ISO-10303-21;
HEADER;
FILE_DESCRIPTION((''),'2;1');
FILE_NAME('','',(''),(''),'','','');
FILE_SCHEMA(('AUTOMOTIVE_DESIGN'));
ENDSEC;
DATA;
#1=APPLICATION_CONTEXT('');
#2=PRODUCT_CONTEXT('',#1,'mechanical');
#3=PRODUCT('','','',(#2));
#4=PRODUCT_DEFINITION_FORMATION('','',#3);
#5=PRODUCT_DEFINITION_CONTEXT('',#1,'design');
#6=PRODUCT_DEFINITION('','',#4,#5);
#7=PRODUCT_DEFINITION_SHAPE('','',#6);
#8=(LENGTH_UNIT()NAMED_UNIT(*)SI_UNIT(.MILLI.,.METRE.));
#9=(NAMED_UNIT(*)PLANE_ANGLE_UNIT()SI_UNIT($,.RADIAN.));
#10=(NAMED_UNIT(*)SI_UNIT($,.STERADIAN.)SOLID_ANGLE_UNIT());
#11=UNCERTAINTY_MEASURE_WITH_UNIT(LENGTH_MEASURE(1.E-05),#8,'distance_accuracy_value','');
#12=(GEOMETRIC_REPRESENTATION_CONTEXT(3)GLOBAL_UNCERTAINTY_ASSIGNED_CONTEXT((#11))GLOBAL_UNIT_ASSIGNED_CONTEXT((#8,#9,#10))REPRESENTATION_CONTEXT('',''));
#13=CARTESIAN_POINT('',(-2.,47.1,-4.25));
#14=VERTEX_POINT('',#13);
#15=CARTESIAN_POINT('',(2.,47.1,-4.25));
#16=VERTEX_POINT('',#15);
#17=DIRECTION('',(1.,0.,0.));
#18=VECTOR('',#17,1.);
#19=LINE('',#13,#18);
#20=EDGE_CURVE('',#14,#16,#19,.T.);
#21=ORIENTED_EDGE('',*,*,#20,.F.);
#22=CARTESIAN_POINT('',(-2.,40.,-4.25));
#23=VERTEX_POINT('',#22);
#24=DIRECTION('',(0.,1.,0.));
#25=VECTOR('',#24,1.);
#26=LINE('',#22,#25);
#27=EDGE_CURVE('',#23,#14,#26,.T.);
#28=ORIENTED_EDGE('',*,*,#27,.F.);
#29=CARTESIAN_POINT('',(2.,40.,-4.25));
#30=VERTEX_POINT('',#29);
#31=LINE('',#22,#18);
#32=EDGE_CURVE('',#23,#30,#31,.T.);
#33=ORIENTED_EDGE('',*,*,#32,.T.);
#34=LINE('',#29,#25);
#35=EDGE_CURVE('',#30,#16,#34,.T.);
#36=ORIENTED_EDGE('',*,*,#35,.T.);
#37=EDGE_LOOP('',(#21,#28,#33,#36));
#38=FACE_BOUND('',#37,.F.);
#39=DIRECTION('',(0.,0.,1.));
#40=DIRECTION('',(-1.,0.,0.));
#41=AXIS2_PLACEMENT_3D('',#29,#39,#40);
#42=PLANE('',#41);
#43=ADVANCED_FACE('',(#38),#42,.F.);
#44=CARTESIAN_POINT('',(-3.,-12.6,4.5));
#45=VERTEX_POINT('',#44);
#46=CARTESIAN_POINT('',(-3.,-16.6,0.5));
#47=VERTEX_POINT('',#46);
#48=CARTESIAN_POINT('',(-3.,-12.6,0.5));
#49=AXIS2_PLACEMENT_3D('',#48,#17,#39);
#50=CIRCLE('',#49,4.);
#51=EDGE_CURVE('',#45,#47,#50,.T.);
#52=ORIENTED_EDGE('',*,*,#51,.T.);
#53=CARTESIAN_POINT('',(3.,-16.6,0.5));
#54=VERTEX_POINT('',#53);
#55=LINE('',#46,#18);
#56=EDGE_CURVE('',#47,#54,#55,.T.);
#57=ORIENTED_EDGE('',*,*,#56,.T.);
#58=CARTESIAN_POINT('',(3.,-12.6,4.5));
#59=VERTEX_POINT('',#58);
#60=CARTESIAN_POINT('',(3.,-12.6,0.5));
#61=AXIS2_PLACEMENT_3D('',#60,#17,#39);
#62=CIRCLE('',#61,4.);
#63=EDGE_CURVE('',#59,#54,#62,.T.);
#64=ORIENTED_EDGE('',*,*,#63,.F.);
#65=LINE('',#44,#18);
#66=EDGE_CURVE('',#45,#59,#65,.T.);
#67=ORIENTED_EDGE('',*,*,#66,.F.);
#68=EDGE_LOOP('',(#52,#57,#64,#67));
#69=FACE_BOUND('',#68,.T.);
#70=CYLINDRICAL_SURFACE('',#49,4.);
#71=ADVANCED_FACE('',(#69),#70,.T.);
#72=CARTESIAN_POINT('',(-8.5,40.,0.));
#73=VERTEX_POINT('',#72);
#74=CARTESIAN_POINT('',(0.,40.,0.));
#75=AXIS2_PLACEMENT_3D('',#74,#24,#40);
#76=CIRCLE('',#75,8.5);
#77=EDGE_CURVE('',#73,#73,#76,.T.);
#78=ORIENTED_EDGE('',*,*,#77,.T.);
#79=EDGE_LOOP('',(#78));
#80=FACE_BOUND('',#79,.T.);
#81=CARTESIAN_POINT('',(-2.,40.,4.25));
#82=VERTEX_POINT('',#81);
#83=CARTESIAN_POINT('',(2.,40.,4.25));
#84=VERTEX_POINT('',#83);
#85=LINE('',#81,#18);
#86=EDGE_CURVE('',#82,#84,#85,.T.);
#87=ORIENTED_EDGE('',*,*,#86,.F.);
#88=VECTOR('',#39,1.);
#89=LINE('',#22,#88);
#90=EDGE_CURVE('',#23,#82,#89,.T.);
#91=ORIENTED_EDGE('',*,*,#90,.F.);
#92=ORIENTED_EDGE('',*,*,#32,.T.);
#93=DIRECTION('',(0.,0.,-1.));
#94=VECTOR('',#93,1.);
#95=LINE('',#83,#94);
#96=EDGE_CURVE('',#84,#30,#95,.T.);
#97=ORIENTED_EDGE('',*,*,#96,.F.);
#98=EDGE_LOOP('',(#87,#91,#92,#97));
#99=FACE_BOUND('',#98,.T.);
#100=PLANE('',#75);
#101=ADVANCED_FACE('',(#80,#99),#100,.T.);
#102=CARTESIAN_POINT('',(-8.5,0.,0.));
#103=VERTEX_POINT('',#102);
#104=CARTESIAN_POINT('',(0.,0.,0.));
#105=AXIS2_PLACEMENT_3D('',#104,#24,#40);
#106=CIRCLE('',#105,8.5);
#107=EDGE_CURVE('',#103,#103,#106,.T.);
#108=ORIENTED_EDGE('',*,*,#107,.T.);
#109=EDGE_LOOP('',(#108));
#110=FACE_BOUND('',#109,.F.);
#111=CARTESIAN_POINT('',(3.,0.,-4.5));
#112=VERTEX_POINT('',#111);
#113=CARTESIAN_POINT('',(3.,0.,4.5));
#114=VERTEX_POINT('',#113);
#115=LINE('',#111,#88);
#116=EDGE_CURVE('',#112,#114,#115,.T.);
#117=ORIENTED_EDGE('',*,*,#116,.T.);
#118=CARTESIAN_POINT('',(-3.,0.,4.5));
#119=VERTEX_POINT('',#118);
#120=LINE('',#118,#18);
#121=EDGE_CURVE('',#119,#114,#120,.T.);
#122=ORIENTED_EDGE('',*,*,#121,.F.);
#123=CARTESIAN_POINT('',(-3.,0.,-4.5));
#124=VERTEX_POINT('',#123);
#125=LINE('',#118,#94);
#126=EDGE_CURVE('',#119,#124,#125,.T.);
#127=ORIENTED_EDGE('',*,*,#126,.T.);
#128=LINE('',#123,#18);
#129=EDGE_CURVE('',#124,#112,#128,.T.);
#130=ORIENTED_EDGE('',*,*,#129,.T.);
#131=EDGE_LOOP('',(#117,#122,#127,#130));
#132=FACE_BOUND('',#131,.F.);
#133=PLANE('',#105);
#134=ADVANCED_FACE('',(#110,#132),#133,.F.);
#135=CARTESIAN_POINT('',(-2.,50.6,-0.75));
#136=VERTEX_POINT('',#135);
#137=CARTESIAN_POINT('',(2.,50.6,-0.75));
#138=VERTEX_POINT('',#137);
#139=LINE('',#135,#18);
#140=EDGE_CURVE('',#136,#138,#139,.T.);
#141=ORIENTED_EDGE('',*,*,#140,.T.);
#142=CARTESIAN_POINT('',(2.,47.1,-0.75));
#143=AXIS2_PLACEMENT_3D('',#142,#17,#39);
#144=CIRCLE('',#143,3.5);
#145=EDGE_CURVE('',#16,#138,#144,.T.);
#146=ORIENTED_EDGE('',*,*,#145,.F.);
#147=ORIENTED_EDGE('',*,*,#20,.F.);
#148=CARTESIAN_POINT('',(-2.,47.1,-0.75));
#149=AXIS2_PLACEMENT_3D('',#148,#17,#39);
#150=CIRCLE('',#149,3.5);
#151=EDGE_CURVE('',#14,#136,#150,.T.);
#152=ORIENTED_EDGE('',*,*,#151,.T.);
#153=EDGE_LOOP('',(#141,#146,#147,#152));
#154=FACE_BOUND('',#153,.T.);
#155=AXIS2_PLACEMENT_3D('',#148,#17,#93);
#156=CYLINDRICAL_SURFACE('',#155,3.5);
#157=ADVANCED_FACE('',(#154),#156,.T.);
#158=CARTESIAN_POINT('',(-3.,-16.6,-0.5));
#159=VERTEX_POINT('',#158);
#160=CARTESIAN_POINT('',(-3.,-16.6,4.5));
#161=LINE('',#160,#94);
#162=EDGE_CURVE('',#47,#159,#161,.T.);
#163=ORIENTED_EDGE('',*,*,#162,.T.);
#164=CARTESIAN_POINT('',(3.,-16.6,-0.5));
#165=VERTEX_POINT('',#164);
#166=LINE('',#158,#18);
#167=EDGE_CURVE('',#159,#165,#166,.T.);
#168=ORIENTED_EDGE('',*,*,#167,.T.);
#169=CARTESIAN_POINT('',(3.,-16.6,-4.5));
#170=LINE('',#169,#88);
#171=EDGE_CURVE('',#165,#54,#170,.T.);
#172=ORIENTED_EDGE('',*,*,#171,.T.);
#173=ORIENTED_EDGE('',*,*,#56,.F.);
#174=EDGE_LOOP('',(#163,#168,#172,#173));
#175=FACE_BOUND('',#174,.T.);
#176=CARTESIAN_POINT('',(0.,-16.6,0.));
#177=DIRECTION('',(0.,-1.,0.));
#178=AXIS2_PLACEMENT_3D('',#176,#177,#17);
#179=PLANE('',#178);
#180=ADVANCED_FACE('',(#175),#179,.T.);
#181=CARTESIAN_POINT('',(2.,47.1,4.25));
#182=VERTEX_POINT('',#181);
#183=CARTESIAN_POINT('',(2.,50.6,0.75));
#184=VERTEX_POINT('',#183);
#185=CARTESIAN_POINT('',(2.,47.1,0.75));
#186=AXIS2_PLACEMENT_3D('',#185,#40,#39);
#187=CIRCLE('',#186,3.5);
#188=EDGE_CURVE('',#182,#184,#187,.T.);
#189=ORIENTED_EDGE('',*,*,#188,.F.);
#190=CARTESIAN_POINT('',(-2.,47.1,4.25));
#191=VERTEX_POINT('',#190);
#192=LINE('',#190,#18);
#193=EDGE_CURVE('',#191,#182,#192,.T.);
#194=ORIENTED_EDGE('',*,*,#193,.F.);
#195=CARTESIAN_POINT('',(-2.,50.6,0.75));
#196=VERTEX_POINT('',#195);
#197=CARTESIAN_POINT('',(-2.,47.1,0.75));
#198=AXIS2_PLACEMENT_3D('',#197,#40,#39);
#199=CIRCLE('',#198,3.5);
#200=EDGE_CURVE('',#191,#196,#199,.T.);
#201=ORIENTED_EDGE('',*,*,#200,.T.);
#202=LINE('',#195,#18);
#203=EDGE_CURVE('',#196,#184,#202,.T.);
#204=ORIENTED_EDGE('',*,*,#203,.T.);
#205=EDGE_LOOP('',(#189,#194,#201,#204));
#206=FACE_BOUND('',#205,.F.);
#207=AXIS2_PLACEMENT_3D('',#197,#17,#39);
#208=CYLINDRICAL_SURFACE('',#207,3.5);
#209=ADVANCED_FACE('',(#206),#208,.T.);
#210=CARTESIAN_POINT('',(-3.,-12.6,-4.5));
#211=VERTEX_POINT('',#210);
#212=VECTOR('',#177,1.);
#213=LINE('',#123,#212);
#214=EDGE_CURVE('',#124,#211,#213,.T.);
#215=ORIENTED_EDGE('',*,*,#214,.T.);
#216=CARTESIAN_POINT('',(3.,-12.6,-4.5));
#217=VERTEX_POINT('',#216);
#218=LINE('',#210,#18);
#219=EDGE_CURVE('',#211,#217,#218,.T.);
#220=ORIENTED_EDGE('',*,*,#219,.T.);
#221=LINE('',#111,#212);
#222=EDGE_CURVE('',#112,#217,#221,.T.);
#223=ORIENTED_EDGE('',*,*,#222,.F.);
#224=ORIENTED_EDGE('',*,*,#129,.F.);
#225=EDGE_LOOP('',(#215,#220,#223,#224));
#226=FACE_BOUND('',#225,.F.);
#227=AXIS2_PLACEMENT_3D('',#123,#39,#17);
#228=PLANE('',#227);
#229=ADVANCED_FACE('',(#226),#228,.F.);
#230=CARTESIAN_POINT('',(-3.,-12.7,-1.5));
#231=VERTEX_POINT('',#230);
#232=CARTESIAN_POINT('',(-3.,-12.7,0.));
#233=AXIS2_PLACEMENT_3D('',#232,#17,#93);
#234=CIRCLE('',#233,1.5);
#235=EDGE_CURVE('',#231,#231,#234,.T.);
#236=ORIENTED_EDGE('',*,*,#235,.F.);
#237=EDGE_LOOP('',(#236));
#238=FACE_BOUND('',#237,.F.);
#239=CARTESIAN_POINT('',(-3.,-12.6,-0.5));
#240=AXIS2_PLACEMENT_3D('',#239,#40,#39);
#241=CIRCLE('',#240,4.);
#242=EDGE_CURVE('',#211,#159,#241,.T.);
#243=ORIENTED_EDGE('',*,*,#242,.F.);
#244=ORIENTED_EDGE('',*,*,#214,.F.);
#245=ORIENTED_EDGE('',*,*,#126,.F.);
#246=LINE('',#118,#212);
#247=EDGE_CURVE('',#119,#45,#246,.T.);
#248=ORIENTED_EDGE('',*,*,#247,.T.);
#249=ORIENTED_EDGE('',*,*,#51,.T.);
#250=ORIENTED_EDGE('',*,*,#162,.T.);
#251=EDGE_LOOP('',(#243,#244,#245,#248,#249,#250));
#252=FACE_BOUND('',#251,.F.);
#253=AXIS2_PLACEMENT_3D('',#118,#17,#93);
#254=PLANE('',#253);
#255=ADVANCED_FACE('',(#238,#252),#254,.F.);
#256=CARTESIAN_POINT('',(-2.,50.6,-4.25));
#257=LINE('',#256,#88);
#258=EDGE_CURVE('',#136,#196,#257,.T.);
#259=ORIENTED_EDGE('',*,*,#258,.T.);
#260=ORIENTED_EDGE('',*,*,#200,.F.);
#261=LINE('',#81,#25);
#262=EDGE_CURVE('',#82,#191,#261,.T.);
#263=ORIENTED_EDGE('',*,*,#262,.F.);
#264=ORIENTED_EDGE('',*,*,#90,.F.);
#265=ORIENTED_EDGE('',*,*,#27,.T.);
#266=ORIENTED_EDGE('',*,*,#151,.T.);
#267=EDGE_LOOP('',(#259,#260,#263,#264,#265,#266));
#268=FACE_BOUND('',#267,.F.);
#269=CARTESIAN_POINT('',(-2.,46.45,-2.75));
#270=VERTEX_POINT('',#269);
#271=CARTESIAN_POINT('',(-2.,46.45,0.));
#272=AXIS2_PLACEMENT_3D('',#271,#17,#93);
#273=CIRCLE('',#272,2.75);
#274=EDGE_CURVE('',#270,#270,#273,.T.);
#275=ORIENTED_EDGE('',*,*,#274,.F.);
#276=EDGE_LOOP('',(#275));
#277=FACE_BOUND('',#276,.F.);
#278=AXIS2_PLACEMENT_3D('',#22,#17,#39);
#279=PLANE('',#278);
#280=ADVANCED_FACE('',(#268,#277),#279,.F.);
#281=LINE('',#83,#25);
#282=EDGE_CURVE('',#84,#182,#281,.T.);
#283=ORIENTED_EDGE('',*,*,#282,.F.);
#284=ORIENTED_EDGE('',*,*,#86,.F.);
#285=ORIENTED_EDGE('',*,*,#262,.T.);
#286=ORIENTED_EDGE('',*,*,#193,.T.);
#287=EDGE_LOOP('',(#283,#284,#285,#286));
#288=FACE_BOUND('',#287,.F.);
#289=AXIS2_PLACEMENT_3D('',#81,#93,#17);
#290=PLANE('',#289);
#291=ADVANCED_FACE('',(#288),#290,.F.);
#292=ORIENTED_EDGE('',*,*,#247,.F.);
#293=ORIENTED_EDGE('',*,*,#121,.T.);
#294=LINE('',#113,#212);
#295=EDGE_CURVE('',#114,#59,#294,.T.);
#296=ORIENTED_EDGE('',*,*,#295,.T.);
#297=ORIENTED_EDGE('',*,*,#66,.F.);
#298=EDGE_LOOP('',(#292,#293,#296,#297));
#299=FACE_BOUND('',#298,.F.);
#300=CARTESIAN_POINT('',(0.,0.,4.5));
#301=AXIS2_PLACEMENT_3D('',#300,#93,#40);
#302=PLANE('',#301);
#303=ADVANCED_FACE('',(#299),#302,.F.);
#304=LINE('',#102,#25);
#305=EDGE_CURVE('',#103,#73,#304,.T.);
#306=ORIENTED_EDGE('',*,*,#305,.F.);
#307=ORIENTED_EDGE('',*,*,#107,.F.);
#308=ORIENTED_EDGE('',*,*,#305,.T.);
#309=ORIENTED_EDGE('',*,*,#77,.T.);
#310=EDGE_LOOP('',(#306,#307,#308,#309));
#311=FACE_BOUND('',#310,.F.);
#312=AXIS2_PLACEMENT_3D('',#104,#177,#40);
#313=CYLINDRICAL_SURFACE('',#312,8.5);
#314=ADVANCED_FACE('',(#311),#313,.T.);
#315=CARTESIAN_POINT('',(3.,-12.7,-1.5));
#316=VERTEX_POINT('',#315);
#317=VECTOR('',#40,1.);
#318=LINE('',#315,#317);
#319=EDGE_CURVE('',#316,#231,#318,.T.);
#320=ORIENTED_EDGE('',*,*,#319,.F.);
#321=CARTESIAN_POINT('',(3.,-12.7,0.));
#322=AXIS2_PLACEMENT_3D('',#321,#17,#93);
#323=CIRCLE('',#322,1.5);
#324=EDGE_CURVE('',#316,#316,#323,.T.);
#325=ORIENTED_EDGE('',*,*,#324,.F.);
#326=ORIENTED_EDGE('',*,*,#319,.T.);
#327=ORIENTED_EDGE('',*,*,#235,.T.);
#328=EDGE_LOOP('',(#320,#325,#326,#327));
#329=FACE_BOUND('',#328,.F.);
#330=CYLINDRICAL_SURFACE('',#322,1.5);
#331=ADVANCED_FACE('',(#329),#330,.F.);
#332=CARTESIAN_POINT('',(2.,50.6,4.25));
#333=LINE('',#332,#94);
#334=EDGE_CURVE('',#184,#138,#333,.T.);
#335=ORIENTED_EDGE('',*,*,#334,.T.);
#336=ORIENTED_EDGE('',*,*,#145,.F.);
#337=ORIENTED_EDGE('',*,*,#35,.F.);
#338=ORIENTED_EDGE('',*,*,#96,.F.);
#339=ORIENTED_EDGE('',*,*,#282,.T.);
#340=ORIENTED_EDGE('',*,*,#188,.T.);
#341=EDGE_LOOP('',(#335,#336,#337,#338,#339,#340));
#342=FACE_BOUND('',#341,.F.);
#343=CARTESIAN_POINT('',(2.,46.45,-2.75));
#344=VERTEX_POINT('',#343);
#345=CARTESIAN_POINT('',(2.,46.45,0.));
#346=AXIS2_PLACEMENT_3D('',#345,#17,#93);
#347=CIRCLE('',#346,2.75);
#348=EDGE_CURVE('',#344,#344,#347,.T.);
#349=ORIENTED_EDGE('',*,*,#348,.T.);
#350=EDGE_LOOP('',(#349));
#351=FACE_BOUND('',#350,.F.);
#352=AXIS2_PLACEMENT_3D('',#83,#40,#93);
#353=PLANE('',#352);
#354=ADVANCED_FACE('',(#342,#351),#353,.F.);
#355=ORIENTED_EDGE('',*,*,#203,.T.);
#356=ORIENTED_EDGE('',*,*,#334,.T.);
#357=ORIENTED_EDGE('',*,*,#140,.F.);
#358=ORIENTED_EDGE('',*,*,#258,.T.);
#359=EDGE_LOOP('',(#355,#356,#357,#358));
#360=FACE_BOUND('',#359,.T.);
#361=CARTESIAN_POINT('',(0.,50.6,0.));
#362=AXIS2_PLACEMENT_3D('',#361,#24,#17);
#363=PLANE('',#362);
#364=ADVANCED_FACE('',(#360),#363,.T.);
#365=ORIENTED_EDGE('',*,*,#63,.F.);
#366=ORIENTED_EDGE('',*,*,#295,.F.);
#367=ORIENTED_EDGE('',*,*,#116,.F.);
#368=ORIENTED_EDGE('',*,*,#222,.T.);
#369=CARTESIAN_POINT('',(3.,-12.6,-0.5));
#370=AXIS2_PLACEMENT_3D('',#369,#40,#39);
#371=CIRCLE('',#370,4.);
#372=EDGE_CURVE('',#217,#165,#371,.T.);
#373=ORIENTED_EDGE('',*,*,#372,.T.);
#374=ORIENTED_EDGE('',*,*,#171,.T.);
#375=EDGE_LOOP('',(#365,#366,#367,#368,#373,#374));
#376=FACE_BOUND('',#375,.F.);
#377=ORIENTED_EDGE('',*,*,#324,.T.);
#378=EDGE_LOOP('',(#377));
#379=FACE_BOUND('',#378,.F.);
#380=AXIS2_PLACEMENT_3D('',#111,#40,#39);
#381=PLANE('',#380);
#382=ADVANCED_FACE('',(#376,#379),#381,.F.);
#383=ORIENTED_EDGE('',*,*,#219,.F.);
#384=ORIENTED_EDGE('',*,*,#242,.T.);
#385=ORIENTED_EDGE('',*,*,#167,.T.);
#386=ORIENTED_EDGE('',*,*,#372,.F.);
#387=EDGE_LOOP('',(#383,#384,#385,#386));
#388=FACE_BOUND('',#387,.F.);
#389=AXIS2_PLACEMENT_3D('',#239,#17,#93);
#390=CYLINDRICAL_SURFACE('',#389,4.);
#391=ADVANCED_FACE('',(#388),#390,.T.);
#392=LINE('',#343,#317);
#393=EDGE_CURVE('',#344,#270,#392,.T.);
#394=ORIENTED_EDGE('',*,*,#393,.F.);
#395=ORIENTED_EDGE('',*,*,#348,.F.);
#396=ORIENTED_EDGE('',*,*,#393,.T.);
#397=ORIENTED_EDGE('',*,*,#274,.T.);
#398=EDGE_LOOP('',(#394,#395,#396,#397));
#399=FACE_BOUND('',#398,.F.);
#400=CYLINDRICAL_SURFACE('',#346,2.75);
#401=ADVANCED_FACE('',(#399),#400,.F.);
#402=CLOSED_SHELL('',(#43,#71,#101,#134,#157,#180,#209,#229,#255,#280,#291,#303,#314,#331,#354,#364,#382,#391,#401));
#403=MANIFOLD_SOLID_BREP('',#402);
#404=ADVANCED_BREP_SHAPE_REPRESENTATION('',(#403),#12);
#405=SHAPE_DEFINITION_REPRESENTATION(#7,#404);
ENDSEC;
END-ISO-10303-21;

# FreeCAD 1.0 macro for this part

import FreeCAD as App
import Part
import Sketcher

V = App.Vector
Q = App.Units.Quantity


def edges_at(feature, points):
    """Names of the edges that pass closest to the given points."""
    edges = feature.Shape.Edges
    near = lambda p: min(range(len(edges)), key=lambda i: edges[i].distToShape(Part.Vertex(*p))[0])
    return sorted({f"Edge{near(p) + 1}" for p in points})

doc = App.newDocument("Part")
body = doc.addObject("PartDesign::Body", "Body")

# Sketch on XZ plane
sketch1 = body.newObject("Sketcher::SketchObject", "Sketch")
sketch1.AttachmentSupport = (doc.getObject("XZ_Plane"), [""])
sketch1.MapMode = "FlatFace"
sketch1.addGeometry(Part.Circle(V(0, 0, 0), V(0, 0, 1), 8), False)
sketch1.addConstraint([
    Sketcher.Constraint("Coincident", 0, 3, -1, 1),
    Sketcher.Constraint("Diameter", 0, Q("17 mm")),
])
pad1 = body.newObject("PartDesign::Pad", "Pad")
pad1.Profile = sketch1
pad1.Length = 40
pad1.Reversed = True

# Sketch on XZ plane
sketch2 = body.newObject("Sketcher::SketchObject", "Sketch001")
sketch2.AttachmentSupport = (doc.getObject("XZ_Plane"), [""])
sketch2.MapMode = "FlatFace"
sketch2.AttachmentOffset = App.Placement(V(0, 0, -40), App.Rotation())
sketch2.addGeometry([
    Part.LineSegment(V(2, -4.2, 0), V(-2, -4.2, 0)),
    Part.LineSegment(V(-2, -4.2, 0), V(-2, 4.2, 0)),
    Part.LineSegment(V(-2, 4.2, 0), V(2, 4.2, 0)),
    Part.LineSegment(V(2, 4.2, 0), V(2, -4.2, 0)),
], False)
sketch2.addConstraint([
    Sketcher.Constraint("Coincident", 0, 2, 1, 1),
    Sketcher.Constraint("Coincident", 1, 2, 2, 1),
    Sketcher.Constraint("Coincident", 2, 2, 3, 1),
    Sketcher.Constraint("Coincident", 3, 2, 0, 1),
    Sketcher.Constraint("Horizontal", 0),
    Sketcher.Constraint("Vertical", 1),
    Sketcher.Constraint("Horizontal", 2),
    Sketcher.Constraint("Vertical", 3),
    Sketcher.Constraint("Symmetric", 0, 2, 2, 2, -1, 1),
    Sketcher.Constraint("DistanceX", 0, 2, 0, 1, Q("4 mm")),
    Sketcher.Constraint("DistanceY", 1, 1, 1, 2, Q("8.5 mm")),
])
pad2 = body.newObject("PartDesign::Pad", "Pad001")
pad2.Profile = sketch2
pad2.Length = 10.6
pad2.Reversed = True
doc.recompute()

fillet = body.newObject("PartDesign::Fillet", "Fillet")
fillet.Base = (pad2, edges_at(pad2, [(0, 50.6, 4.25), (0, 50.6, -4.25)]))
fillet.Radius = 3.5

# Sketch on YZ plane
sketch3 = body.newObject("Sketcher::SketchObject", "Sketch002")
sketch3.AttachmentSupport = (doc.getObject("YZ_Plane"), [""])
sketch3.MapMode = "FlatFace"
sketch3.AttachmentOffset = App.Placement(V(0, 0, 2), App.Rotation())
sketch3.addGeometry(Part.Circle(V(46.5, 0, 0), V(0, 0, 1), 2.8), False)
sketch3.addConstraint([
    Sketcher.Constraint("PointOnObject", 0, 3, -1),
    Sketcher.Constraint("Diameter", 0, Q("5.5 mm")),
    Sketcher.Constraint("DistanceX", -1, 1, 0, 3, Q("46.45 mm")),
])
pocket1 = body.newObject("PartDesign::Pocket", "Pocket")
pocket1.Profile = sketch3
pocket1.Length = 10.5

# Sketch on XZ plane
sketch4 = body.newObject("Sketcher::SketchObject", "Sketch003")
sketch4.AttachmentSupport = (doc.getObject("XZ_Plane"), [""])
sketch4.MapMode = "FlatFace"
sketch4.addGeometry([
    Part.LineSegment(V(3, 4, 0), V(-3, 4, 0)),
    Part.LineSegment(V(-3, 4, 0), V(-3, -4, 0)),
    Part.LineSegment(V(-3, -4, 0), V(3, -4, 0)),
    Part.LineSegment(V(3, -4, 0), V(3, 4, 0)),
], False)
sketch4.addConstraint([
    Sketcher.Constraint("Coincident", 0, 2, 1, 1),
    Sketcher.Constraint("Coincident", 1, 2, 2, 1),
    Sketcher.Constraint("Coincident", 2, 2, 3, 1),
    Sketcher.Constraint("Coincident", 3, 2, 0, 1),
    Sketcher.Constraint("Horizontal", 0),
    Sketcher.Constraint("Vertical", 1),
    Sketcher.Constraint("Horizontal", 2),
    Sketcher.Constraint("Vertical", 3),
    Sketcher.Constraint("Symmetric", 0, 2, 2, 2, -1, 1),
    Sketcher.Constraint("DistanceX", 0, 2, 0, 1, Q("6 mm")),
    Sketcher.Constraint("DistanceY", 1, 2, 1, 1, Q("9 mm")),
])
pad3 = body.newObject("PartDesign::Pad", "Pad002")
pad3.Profile = sketch4
pad3.Length = 16.6
doc.recompute()

fillet2 = body.newObject("PartDesign::Fillet", "Fillet001")
fillet2.Base = (pad3, edges_at(pad3, [(0, -16.6, -4.5), (0, -16.6, 4.5)]))
fillet2.Radius = 4

# Sketch on YZ plane
sketch5 = body.newObject("Sketcher::SketchObject", "Sketch004")
sketch5.AttachmentSupport = (doc.getObject("YZ_Plane"), [""])
sketch5.MapMode = "FlatFace"
sketch5.AttachmentOffset = App.Placement(V(0, 0, 3), App.Rotation())
sketch5.addGeometry(Part.Circle(V(-12.7, 0, 0), V(0, 0, 1), 1.5), False)
sketch5.addConstraint([
    Sketcher.Constraint("PointOnObject", 0, 3, -1),
    Sketcher.Constraint("Diameter", 0, Q("3 mm")),
    Sketcher.Constraint("DistanceX", 0, 3, -1, 1, Q("12.7 mm")),
])
pocket2 = body.newObject("PartDesign::Pocket", "Pocket001")
pocket2.Profile = sketch5
pocket2.Length = 16.5

doc.recompute()
